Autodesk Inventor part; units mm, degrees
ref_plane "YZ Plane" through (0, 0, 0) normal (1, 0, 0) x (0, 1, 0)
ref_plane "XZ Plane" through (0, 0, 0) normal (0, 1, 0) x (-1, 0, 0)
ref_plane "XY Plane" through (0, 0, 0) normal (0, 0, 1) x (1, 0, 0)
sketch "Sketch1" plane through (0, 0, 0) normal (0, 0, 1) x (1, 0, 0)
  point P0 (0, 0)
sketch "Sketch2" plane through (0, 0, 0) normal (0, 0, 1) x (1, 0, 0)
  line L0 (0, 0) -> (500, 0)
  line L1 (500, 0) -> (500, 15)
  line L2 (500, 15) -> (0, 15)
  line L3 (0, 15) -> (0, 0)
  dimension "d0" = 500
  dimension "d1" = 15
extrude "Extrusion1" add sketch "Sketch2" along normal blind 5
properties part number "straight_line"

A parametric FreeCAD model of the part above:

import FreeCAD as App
import Part
import Sketcher

V = App.Vector


def add_polygon(sketch, points):
    """Adds a closed chain of lines whose ends are joined by coincident constraints."""
    first, n = sketch.GeometryCount, len(points)
    for a, b in zip(points, points[1:] + points[:1]):
        sketch.addGeometry(Part.LineSegment(App.Vector(*a, 0), App.Vector(*b, 0)), False)
    for i in range(n):
        sketch.addConstraint(Sketcher.Constraint("Coincident", first + i, 2, first + (i + 1) % n, 1))

doc = App.newDocument("Part")
body = doc.addObject("PartDesign::Body", "Body")

sketch1 = body.newObject("Sketcher::SketchObject", "Sketch")
sketch1.AttachmentSupport = (doc.getObject("XY_Plane"), [""])
sketch1.MapMode = "FlatFace"
add_polygon(sketch1, [(0, 15), (0, 0), (500, 0), (500, 15)])
sketch1.addConstraint(Sketcher.Constraint("Vertical", 0))
sketch1.addConstraint(Sketcher.Constraint("Horizontal", 1))
sketch1.addConstraint(Sketcher.Constraint("Vertical", 2))
sketch1.addConstraint(Sketcher.Constraint("Horizontal", 3))
sketch1.addConstraint(Sketcher.Constraint("Coincident", 0, 2, -1, 1))
sketch1.addConstraint(Sketcher.Constraint("DistanceX", 1, 1, 1, 2, 500.0))
sketch1.addConstraint(Sketcher.Constraint("DistanceY", 0, 2, 0, 1, 15.0))
pad1 = body.newObject("PartDesign::Pad", "Pad")
pad1.Profile = sketch1
pad1.Length = 5

doc.recompute()
